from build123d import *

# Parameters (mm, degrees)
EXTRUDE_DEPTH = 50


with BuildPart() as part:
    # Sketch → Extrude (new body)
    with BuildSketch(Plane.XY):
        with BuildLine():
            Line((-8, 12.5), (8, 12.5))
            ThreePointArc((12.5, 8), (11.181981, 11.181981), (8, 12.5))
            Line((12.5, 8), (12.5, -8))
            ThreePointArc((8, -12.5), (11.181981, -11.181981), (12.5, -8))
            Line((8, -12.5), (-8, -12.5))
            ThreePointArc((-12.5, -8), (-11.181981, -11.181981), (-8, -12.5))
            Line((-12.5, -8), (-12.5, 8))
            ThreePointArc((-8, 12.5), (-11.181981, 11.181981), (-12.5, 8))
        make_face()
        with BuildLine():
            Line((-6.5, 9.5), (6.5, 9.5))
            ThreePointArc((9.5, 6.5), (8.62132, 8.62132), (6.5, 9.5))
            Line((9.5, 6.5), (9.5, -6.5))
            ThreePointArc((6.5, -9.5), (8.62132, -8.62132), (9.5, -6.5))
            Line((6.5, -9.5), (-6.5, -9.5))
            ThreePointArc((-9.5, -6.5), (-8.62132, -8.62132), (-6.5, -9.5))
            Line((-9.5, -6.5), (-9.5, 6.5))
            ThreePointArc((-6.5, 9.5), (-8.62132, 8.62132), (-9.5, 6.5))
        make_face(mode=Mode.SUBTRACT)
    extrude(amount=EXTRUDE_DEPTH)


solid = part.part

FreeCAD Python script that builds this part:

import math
import FreeCAD as App
import Part
import Sketcher
Q = App.Units.Quantity

doc = App.newDocument("Part")
body = doc.addObject("PartDesign::Body", "Body")

sketch1 = body.newObject("Sketcher::SketchObject", "Sketch")
sketch1.AttachmentSupport = (doc.getObject("XY_Plane"), [""])
sketch1.MapMode = "FlatFace"
sketch1.addGeometry([
    Part.LineSegment(App.Vector(8, 12.5, 0), App.Vector(-8, 12.5, 0)),
    Part.ArcOfCircle(Part.Circle(App.Vector(-8, 8, 0), App.Vector(0, 0, 1), 4.5), math.radians(90), math.radians(180)),
    Part.LineSegment(App.Vector(-12.5, 8, 0), App.Vector(-12.5, -8, 0)),
    Part.ArcOfCircle(Part.Circle(App.Vector(-8, -8, 0), App.Vector(0, 0, 1), 4.5), math.radians(180), math.radians(270)),
    Part.LineSegment(App.Vector(-8, -12.5, 0), App.Vector(8, -12.5, 0)),
    Part.ArcOfCircle(Part.Circle(App.Vector(8, -8, 0), App.Vector(0, 0, 1), 4.5), math.radians(-90), math.radians(0)),
    Part.LineSegment(App.Vector(12.5, -8, 0), App.Vector(12.5, 8, 0)),
    Part.ArcOfCircle(Part.Circle(App.Vector(8, 8, 0), App.Vector(0, 0, 1), 4.5), math.radians(0), math.radians(90)),
    Part.LineSegment(App.Vector(-6.5, 9.5, 0), App.Vector(6.5, 9.5, 0)),
    Part.ArcOfCircle(Part.Circle(App.Vector(6.5, 6.5, 0), App.Vector(0, 0, 1), 3), math.radians(0), math.radians(90)),
    Part.LineSegment(App.Vector(9.5, 6.5, 0), App.Vector(9.5, -6.5, 0)),
    Part.ArcOfCircle(Part.Circle(App.Vector(6.5, -6.5, 0), App.Vector(0, 0, 1), 3), math.radians(-90), math.radians(0)),
    Part.LineSegment(App.Vector(6.5, -9.5, 0), App.Vector(-6.5, -9.5, 0)),
    Part.ArcOfCircle(Part.Circle(App.Vector(-6.5, -6.5, 0), App.Vector(0, 0, 1), 3), math.radians(-180), math.radians(-90)),
    Part.LineSegment(App.Vector(-9.5, -6.5, 0), App.Vector(-9.5, 6.5, 0)),
    Part.ArcOfCircle(Part.Circle(App.Vector(-6.5, 6.5, 0), App.Vector(0, 0, 1), 3), math.radians(90), math.radians(180)),
], False)
sketch1.addConstraint([
    Sketcher.Constraint("Tangent", 0, 2, 1, 1),
    Sketcher.Constraint("Tangent", 1, 2, 2, 1),
    Sketcher.Constraint("Tangent", 2, 2, 3, 1),
    Sketcher.Constraint("Tangent", 3, 2, 4, 1),
    Sketcher.Constraint("Tangent", 4, 2, 5, 1),
    Sketcher.Constraint("Tangent", 5, 2, 6, 1),
    Sketcher.Constraint("Tangent", 6, 2, 7, 1),
    Sketcher.Constraint("Tangent", 7, 2, 0, 1),
    Sketcher.Constraint("Tangent", 8, 2, 9, 2),
    Sketcher.Constraint("Tangent", 9, 1, 10, 1),
    Sketcher.Constraint("Tangent", 10, 2, 11, 2),
    Sketcher.Constraint("Tangent", 11, 1, 12, 1),
    Sketcher.Constraint("Tangent", 12, 2, 13, 2),
    Sketcher.Constraint("Tangent", 13, 1, 14, 1),
    Sketcher.Constraint("Tangent", 14, 2, 15, 2),
    Sketcher.Constraint("Tangent", 15, 1, 8, 1),
    Sketcher.Constraint("Horizontal", 0),
    Sketcher.Constraint("Vertical", 2),
    Sketcher.Constraint("Horizontal", 4),
    Sketcher.Constraint("Vertical", 6),
    Sketcher.Constraint("Horizontal", 8),
    Sketcher.Constraint("Vertical", 10),
    Sketcher.Constraint("Horizontal", 12),
    Sketcher.Constraint("Vertical", 14),
    Sketcher.Constraint("Equal", 1, 3),
    Sketcher.Constraint("Equal", 3, 5),
    Sketcher.Constraint("Equal", 5, 7),
    Sketcher.Constraint("Equal", 9, 11),
    Sketcher.Constraint("Equal", 11, 13),
    Sketcher.Constraint("Equal", 13, 15),
    Sketcher.Constraint("Symmetric", 1, 3, 5, 3, -1, 1),
    Sketcher.Constraint("Symmetric", 9, 3, 13, 3, -1, 1),
    Sketcher.Constraint("Equal", 4, 2),
    Sketcher.Constraint("Equal", 12, 10),
    Sketcher.Constraint("Radius", 9, Q("3.000001 mm")),
    Sketcher.Constraint("Radius", 1, Q("4.499998 mm")),
    Sketcher.Constraint("DistanceX", 0, 2, 0, 1, Q("16 mm")),
    Sketcher.Constraint("DistanceX", 8, 1, 8, 2, Q("13 mm")),
])
pad1 = body.newObject("PartDesign::Pad", "Pad")
pad1.Profile = sketch1
pad1.Length = 50

doc.recompute()
